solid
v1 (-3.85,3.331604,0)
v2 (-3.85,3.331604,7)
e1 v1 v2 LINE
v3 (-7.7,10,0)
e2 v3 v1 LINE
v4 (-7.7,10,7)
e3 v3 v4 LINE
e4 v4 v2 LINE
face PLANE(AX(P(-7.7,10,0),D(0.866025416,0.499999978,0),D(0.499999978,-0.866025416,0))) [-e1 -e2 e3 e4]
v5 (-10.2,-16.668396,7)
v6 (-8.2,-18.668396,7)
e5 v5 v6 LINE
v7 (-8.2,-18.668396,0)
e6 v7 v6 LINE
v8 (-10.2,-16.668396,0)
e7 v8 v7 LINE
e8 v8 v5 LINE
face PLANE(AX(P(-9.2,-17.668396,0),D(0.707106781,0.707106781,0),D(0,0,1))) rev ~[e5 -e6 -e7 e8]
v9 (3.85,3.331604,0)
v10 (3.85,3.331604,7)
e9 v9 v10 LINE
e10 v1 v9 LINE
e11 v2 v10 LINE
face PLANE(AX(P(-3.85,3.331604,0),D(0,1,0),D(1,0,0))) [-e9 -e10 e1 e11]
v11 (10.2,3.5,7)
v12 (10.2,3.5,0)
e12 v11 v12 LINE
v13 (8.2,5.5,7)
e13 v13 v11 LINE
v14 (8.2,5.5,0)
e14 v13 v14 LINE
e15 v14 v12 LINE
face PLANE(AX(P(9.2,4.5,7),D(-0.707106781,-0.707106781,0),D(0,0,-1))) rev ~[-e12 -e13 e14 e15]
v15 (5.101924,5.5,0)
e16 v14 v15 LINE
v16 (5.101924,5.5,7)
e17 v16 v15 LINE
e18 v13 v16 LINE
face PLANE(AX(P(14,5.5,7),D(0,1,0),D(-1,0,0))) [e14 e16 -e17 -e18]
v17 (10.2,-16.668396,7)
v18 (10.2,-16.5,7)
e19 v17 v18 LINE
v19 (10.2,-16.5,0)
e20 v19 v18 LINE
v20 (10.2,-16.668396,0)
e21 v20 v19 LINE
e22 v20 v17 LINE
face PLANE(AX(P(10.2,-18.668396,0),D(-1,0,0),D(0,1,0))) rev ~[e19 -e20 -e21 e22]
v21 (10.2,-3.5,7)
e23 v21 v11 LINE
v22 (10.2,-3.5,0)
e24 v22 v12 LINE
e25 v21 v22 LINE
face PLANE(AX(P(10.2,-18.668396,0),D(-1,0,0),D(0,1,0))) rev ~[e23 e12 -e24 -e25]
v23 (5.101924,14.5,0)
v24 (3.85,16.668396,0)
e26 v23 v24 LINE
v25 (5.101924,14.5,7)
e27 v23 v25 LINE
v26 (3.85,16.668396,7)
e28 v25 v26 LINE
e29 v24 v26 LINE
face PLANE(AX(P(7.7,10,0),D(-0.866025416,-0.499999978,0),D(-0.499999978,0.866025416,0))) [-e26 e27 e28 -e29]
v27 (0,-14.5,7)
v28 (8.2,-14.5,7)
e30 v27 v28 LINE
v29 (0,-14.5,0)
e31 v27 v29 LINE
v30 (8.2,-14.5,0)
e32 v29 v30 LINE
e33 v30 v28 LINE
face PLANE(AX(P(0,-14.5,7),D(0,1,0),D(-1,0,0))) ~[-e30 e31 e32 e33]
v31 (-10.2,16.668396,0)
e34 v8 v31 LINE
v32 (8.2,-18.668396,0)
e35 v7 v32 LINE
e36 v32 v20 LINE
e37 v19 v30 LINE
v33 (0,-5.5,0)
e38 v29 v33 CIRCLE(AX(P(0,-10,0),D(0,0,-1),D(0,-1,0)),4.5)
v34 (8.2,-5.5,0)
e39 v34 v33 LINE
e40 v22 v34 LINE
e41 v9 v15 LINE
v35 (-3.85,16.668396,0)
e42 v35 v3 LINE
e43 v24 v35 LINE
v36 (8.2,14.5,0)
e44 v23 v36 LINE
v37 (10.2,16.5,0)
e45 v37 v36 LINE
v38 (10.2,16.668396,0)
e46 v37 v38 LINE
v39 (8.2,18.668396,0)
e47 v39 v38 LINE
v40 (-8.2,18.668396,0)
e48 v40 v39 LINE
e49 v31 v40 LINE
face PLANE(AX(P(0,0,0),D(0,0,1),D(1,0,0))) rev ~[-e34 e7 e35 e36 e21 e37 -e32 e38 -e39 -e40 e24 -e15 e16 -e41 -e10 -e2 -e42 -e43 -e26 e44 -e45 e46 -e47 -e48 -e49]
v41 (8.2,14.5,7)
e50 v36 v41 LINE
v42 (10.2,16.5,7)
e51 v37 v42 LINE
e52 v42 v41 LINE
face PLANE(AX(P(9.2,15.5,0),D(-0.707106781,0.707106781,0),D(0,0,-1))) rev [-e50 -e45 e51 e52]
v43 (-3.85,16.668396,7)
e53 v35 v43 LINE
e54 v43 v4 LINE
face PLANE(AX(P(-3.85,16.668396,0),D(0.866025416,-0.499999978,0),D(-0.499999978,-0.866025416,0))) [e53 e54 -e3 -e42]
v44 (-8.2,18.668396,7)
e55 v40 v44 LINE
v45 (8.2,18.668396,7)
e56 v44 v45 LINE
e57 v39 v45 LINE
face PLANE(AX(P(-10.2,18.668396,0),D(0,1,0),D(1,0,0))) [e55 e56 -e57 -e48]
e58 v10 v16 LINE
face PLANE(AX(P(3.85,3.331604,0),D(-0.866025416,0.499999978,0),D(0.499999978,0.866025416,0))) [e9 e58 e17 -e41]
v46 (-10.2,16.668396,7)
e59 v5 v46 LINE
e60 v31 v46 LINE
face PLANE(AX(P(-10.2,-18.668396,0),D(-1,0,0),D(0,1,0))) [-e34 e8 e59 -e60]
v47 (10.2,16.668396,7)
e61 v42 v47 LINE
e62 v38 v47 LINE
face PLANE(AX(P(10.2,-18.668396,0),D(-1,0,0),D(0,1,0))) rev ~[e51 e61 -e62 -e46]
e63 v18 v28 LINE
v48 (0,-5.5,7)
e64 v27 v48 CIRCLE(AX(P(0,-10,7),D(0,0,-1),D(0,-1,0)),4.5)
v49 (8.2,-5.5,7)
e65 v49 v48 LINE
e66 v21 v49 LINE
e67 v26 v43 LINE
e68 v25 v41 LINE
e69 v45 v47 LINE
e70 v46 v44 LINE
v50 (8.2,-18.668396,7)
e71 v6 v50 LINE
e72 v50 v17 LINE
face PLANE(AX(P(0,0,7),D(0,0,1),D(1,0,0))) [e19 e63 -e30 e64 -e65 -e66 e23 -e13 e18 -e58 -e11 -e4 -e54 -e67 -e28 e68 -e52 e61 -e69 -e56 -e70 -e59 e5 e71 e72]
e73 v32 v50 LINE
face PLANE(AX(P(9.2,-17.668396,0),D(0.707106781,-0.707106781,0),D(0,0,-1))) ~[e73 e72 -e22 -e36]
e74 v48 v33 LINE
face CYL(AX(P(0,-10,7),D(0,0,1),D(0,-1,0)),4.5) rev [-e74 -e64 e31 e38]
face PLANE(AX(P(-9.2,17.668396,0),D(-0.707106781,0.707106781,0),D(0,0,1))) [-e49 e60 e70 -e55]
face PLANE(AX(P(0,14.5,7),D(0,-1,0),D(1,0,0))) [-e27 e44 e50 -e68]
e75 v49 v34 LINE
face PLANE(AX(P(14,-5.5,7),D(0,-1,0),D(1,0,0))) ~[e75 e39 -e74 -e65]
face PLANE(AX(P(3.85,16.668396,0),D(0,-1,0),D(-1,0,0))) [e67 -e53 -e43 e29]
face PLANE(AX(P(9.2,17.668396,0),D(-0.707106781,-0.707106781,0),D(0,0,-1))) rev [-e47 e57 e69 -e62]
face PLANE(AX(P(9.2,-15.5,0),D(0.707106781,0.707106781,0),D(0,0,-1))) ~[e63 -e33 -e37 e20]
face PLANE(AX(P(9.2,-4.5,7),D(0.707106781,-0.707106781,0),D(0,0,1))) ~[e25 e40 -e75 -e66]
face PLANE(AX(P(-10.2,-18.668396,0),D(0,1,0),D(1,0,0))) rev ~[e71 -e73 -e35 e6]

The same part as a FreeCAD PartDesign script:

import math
import FreeCAD as App
import Part
import Sketcher

V = App.Vector
Q = App.Units.Quantity


def edges_at(feature, points):
    """Names of the edges that pass closest to the given points."""
    edges = feature.Shape.Edges
    near = lambda p: min(range(len(edges)), key=lambda i: edges[i].distToShape(Part.Vertex(*p))[0])
    return sorted({f"Edge{near(p) + 1}" for p in points})


def add_polygon(sketch, points):
    """Adds a closed chain of lines whose ends are joined by coincident constraints."""
    first, n = sketch.GeometryCount, len(points)
    for a, b in zip(points, points[1:] + points[:1]):
        sketch.addGeometry(Part.LineSegment(App.Vector(*a, 0), App.Vector(*b, 0)), False)
    for i in range(n):
        sketch.addConstraint(Sketcher.Constraint("Coincident", first + i, 2, first + (i + 1) % n, 1))

doc = App.newDocument("Part")
body = doc.addObject("PartDesign::Body", "Body")

sketch1 = body.newObject("Sketcher::SketchObject", "Sketch")
sketch1.AttachmentSupport = (doc.getObject("XY_Plane"), [""])
sketch1.MapMode = "FlatFace"
add_polygon(sketch1, [(-10, 19), (-10, -19), (10, -19), (10, 19)])
add_polygon(sketch1, [(8, 10), (4, 3), (-4, 3), (-8, 10), (-4, 17), (4, 17)])
sketch1.addConstraint(Sketcher.Constraint("Vertical", 0))
sketch1.addConstraint(Sketcher.Constraint("Horizontal", 1))
sketch1.addConstraint(Sketcher.Constraint("Vertical", 2))
sketch1.addConstraint(Sketcher.Constraint("Horizontal", 3))
sketch1.addConstraint(Sketcher.Constraint("Horizontal", 5))
sketch1.addConstraint(Sketcher.Constraint("Horizontal", 8))
sketch1.addConstraint(Sketcher.Constraint("Symmetric", 0, 2, 2, 2, -1, 1))
sketch1.addConstraint(Sketcher.Constraint("Symmetric", 6, 2, 9, 2, -2))
sketch1.addConstraint(Sketcher.Constraint("Parallel", 4, 7))
sketch1.addConstraint(Sketcher.Constraint("Parallel", 6, 9))
sketch1.addConstraint(Sketcher.Constraint("Vertical", 5, 2, 7, 2))
sketch1.addConstraint(Sketcher.Constraint("Vertical", 4, 2, 8, 2))
sketch1.addConstraint(Sketcher.Constraint("Angle", 4, Q("-119.999999 deg")))
sketch1.addConstraint(Sketcher.Constraint("DistanceX", 1, 1, 1, 2, Q("20.4 mm")))
sketch1.addConstraint(Sketcher.Constraint("DistanceX", 5, 2, 5, 1, Q("7.7 mm")))
sketch1.addConstraint(Sketcher.Constraint("DistanceY", -1, 1, 6, 2, Q("10 mm")))
sketch1.addConstraint(Sketcher.Constraint("DistanceY", 1, 2, 4, 2, Q("22 mm")))
sketch1.addConstraint(Sketcher.Constraint("Distance", 4, Q("7.7 mm")))
pad1 = body.newObject("PartDesign::Pad", "Pad")
pad1.Profile = sketch1
pad1.Length = 7

sketch2 = body.newObject("Sketcher::SketchObject", "Sketch001")
sketch2.AttachmentSupport = (doc.getObject("XY_Plane"), [""])
sketch2.MapMode = "FlatFace"
sketch2.AttachmentOffset = App.Placement(V(0, 0, 7), App.Rotation())
sketch2.addGeometry(Part.LineSegment(V(14, 14.5, 0), V(0, 14.5, 0)), False)
sketch2.addGeometry(Part.ArcOfCircle(Part.Circle(V(0, 10, 0), V(0, 0, 1), 4.5), math.radians(90), math.radians(270)), False)
sketch2.addGeometry(Part.LineSegment(V(0, 5.5, 0), V(14, 5.5, 0)), False)
sketch2.addGeometry(Part.LineSegment(V(14, 5.5, 0), V(14, 14.5, 0)), False)
sketch2.addConstraint(Sketcher.Constraint("Tangent", 0, 2, 1, 1))
sketch2.addConstraint(Sketcher.Constraint("Tangent", 1, 2, 2, 1))
sketch2.addConstraint(Sketcher.Constraint("Coincident", 2, 2, 3, 1))
sketch2.addConstraint(Sketcher.Constraint("Coincident", 3, 2, 0, 1))
sketch2.addConstraint(Sketcher.Constraint("Horizontal", 0))
sketch2.addConstraint(Sketcher.Constraint("Horizontal", 2))
sketch2.addConstraint(Sketcher.Constraint("Vertical", 3))
sketch2.addConstraint(Sketcher.Constraint("PointOnObject", 1, 3, -2))
sketch2.addConstraint(Sketcher.Constraint("Radius", 1, Q("4.5 mm")))
sketch2.addConstraint(Sketcher.Constraint("DistanceX", 0, 2, 0, 1, Q("14 mm")))
sketch2.addConstraint(Sketcher.Constraint("DistanceY", -1, 1, 1, 3, Q("10 mm")))
pocket1 = body.newObject("PartDesign::Pocket", "Pocket")
pocket1.Profile = sketch2
pocket1.Length = 7
doc.recompute()

mirrored = body.newObject("PartDesign::Mirrored", "Mirrored")
mirrored.Originals = [pocket1]
mirrored.MirrorPlane = (doc.getObject("XZ_Plane"), [""])
body.Tip = mirrored
doc.recompute()

chamfer = body.newObject("PartDesign::Chamfer", "Chamfer")
chamfer.Base = (mirrored, edges_at(mirrored, [
    (10.2, 18.668, 3.5),
    (10.2, 14.5, 3.5),
    (10.2, 5.5, 3.5),
    (10.2, -5.5, 3.5),
    (10.2, -14.5, 3.5),
    (10.2, -18.668, 3.5),
    (-10.2, -18.668, 3.5),
    (-10.2, 18.668, 3.5),
]))
chamfer.Size = 2

doc.recompute()
